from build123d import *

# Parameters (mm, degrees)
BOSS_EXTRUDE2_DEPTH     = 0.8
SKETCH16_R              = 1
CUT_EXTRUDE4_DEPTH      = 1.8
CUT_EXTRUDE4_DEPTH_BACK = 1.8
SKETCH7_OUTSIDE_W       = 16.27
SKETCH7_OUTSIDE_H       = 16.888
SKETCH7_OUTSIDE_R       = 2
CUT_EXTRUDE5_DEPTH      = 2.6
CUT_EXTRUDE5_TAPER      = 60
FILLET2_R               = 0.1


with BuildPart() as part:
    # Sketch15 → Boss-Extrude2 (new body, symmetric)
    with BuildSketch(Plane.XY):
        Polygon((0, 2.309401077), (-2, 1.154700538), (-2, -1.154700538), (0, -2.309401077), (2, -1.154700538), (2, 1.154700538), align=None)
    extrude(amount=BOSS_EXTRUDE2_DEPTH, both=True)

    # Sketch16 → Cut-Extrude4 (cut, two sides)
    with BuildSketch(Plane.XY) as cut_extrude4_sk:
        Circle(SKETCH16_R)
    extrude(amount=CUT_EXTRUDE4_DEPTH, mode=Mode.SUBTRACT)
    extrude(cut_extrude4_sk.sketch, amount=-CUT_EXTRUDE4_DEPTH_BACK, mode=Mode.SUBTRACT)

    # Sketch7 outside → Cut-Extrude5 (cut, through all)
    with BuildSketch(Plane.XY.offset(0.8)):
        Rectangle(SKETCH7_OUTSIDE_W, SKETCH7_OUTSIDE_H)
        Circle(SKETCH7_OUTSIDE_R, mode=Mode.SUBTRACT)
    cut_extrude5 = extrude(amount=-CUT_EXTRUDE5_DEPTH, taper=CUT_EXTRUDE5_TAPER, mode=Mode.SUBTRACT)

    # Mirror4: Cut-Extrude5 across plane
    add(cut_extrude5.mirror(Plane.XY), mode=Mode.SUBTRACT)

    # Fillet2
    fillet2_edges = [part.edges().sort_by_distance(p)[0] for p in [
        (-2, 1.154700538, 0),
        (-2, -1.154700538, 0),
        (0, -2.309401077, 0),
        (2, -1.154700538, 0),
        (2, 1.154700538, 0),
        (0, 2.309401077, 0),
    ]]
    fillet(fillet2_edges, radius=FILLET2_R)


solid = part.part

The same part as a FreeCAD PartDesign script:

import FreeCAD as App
import Part
import Sketcher
from FreeCAD import Vector
Q = App.Units.Quantity


def edges_at(feature, points):
    """Names of the edges that pass closest to the given points."""
    edges = feature.Shape.Edges
    near = lambda p: min(range(len(edges)), key=lambda i: edges[i].distToShape(Part.Vertex(*p))[0])
    return sorted({f"Edge{near(p) + 1}" for p in points})


def add_polygon(sketch, points):
    """Adds a closed chain of lines whose ends are joined by coincident constraints."""
    first, n = sketch.GeometryCount, len(points)
    for a, b in zip(points, points[1:] + points[:1]):
        sketch.addGeometry(Part.LineSegment(App.Vector(*a, 0), App.Vector(*b, 0)), False)
    for i in range(n):
        sketch.addConstraint(Sketcher.Constraint("Coincident", first + i, 2, first + (i + 1) % n, 1))

doc = App.newDocument("Part")
body = doc.addObject("PartDesign::Body", "Body")

# Sketch on XY plane
sketch1 = body.newObject("Sketcher::SketchObject", "Sketch")
sketch1.AttachmentSupport = (doc.getObject("XY_Plane"), [""])
sketch1.MapMode = "FlatFace"
add_polygon(sketch1, [(0, 2.3), (-2, 1.2), (-2, -1.2), (0, -2.3), (2, -1.2), (2, 1.2)])  # lines 0-5
sketch1.addConstraint(Sketcher.Constraint("Vertical", 1))
sketch1.addConstraint(Sketcher.Constraint("Vertical", 4))
sketch1.addConstraint(Sketcher.Constraint("Symmetric", 0, 2, 3, 2, -1, 1))
sketch1.addConstraint(Sketcher.Constraint("Symmetric", 2, 2, 5, 2, -1, 1))
sketch1.addConstraint(Sketcher.Constraint("PointOnObject", 2, 2, -2))
sketch1.addConstraint(Sketcher.Constraint("Parallel", 2, 5))
sketch1.addConstraint(Sketcher.Constraint("Horizontal", 1, 2, 3, 2))
sketch1.addConstraint(Sketcher.Constraint("Angle", 0, Q("-150 deg")))
sketch1.addConstraint(Sketcher.Constraint("DistanceX", 0, 2, -1, 1, 2.0))
sketch1.addConstraint(Sketcher.Constraint("DistanceY", 1, 2, 1, 1, 2.309401))
pad1 = body.newObject("PartDesign::Pad", "Pad")
pad1.Profile = sketch1
pad1.Length = 1.6
pad1.Midplane = True

# Sketch on XY plane
sketch2 = body.newObject("Sketcher::SketchObject", "Sketch001")
sketch2.AttachmentSupport = (doc.getObject("XY_Plane"), [""])
sketch2.MapMode = "FlatFace"
sketch2.addGeometry(Part.Circle(Vector(0, 0, 0), Vector(0, 0, 1), 1), False)
sketch2.addConstraint(Sketcher.Constraint("Coincident", 0, 3, -1, 1))
sketch2.addConstraint(Sketcher.Constraint("Diameter", 0, 2.0))
pocket1 = body.newObject("PartDesign::Pocket", "Pocket")
pocket1.Profile = sketch2
pocket1.Type = "ThroughAll"
pocket1.Midplane = True

# Sketch on XY plane
sketch3 = body.newObject("Sketcher::SketchObject", "Sketch002")
sketch3.AttachmentSupport = (doc.getObject("XY_Plane"), [""])
sketch3.MapMode = "FlatFace"
sketch3.AttachmentOffset = App.Placement(Vector(0, 0, 0.8), App.Rotation())
add_polygon(sketch3, [(-8.1, 8.4), (-8.1, -8.4), (8.1, -8.4), (8.1, 8.4)])  # lines 0-3
sketch3.addGeometry(Part.Circle(Vector(0, 0, 0), Vector(0, 0, 1), 2), False)  # 4
sketch3.addConstraint(Sketcher.Constraint("Vertical", 0))
sketch3.addConstraint(Sketcher.Constraint("Horizontal", 1))
sketch3.addConstraint(Sketcher.Constraint("Vertical", 2))
sketch3.addConstraint(Sketcher.Constraint("Horizontal", 3))
sketch3.addConstraint(Sketcher.Constraint("Coincident", 4, 3, -1, 1))
sketch3.addConstraint(Sketcher.Constraint("Symmetric", 0, 2, 2, 2, -1, 1))
sketch3.addConstraint(Sketcher.Constraint("Diameter", 4, 4.0))
sketch3.addConstraint(Sketcher.Constraint("DistanceX", 1, 1, 1, 2, 16.27))
sketch3.addConstraint(Sketcher.Constraint("DistanceY", 0, 2, 0, 1, 16.888))
pocket2 = body.newObject("PartDesign::Pocket", "Pocket001")
pocket2.Profile = sketch3
pocket2.Length = 2.6
pocket2.TaperAngle = 60
doc.recompute()

mirrored = body.newObject("PartDesign::Mirrored", "Mirrored")
mirrored.Originals = [pocket2]
mirrored.MirrorPlane = (doc.getObject("XY_Plane"), [""])
body.Tip = mirrored
doc.recompute()

fillet = body.newObject("PartDesign::Fillet", "Fillet")
fillet.Base = (mirrored, edges_at(mirrored, [
    (-2, 1.155, 0),
    (-2, -1.155, 0),
    (0, -2.309, 0),
    (2, -1.155, 0),
    (2, 1.155, 0),
    (0, 2.309, 0),
]))
fillet.Radius = 0.1

doc.recompute()
